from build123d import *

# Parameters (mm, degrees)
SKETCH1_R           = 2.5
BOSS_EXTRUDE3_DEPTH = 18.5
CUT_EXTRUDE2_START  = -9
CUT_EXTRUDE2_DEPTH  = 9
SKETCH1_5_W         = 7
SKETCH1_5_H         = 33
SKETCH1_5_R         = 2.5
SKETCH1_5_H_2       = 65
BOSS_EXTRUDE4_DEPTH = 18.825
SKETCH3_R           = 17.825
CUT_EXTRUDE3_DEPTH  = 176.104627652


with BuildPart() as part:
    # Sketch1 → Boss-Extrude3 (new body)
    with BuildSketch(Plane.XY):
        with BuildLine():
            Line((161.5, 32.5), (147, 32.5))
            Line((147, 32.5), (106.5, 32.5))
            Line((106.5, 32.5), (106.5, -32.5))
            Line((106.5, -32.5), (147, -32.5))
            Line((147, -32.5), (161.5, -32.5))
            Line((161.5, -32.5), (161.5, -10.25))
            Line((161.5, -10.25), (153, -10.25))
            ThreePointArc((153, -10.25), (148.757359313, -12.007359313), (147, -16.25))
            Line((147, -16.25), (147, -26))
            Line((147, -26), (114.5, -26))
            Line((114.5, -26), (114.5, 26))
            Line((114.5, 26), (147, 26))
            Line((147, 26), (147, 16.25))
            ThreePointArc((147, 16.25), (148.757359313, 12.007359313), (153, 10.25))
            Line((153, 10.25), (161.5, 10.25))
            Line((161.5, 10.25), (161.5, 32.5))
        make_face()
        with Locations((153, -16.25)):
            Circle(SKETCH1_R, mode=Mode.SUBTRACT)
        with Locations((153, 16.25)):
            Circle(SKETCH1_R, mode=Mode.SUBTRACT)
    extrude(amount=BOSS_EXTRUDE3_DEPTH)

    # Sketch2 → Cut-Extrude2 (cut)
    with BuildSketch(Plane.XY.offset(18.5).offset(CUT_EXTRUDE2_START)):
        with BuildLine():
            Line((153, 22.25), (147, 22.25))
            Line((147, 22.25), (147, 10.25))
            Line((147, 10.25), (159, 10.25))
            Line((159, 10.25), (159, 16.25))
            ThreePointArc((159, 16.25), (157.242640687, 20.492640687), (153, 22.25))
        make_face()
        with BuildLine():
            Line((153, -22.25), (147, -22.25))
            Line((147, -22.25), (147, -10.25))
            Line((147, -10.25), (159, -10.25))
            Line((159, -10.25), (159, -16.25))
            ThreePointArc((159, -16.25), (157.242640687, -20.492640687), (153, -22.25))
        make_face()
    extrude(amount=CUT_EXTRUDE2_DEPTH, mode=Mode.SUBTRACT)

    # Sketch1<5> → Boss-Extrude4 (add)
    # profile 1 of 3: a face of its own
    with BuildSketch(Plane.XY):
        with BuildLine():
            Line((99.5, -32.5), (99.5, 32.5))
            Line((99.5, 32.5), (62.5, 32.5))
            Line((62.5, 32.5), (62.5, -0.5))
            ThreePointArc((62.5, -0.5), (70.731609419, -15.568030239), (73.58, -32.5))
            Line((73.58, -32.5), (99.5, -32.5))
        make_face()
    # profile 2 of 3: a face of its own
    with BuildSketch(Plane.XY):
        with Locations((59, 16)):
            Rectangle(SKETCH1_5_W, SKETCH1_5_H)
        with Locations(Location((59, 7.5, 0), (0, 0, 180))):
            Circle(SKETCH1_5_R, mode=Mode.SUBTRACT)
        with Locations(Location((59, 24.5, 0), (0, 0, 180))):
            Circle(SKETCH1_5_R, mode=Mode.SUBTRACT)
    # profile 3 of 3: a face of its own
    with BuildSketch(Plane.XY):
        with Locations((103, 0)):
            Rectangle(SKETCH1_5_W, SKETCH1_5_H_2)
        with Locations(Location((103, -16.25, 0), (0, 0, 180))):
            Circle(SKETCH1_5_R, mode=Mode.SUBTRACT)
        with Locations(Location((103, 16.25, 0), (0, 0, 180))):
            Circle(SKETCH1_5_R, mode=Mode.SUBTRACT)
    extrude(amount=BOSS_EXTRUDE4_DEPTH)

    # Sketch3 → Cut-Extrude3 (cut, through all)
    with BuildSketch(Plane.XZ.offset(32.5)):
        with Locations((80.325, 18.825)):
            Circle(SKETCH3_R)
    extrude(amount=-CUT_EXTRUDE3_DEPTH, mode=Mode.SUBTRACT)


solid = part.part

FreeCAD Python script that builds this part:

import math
import FreeCAD as App
import Part
import Sketcher

V = App.Vector

doc = App.newDocument("Part")
params = doc.addObject("Spreadsheet::Sheet", "Params")
for row, (alias, value) in enumerate([
    ("sketch1_diameter", "5 mm"),
    ("sketch1_radius", "6 mm"),
    ("sketch1_width", "55 mm"),
    ("sketch1_height", "65 mm"),
    ("sketch1_height2", "52 mm"),
    ("pad1_length", "18.5 mm"),
    ("sketch2_radius", "6 mm"),
    ("sketch2_width", "6 mm"),
    ("pocket1_length", "9 mm"),
    ("sketch3_diameter", "5 mm"),
    ("sketch3_width", "7 mm"),
    ("sketch3_width2", "51 mm"),
    ("sketch3_height", "33 mm"),
    ("sketch3_height2", "65 mm"),
    ("pad2_length", "18.825 mm"),
    ("sketch4_diameter", "35.65 mm"),
], start=1):
    params.set(f"A{row}", alias)
    params.set(f"B{row}", "=" + value)
    params.setAlias(f"B{row}", alias)

body = doc.addObject("PartDesign::Body", "Body")

sketch1 = doc.addObject("Sketcher::SketchObject", "Sketch")
body.addObject(sketch1)
sketch1.AttachmentSupport = (doc.XY_Plane, [""])
sketch1.MapMode = "FlatFace"
sketch1.addGeometry([
    Part.LineSegment(V(161.5, 32.5, 0), V(106.5, 32.5, 0)),
    Part.LineSegment(V(106.5, 32.5, 0), V(106.5, -32.5, 0)),
    Part.LineSegment(V(106.5, -32.5, 0), V(161.5, -32.5, 0)),
    Part.LineSegment(V(161.5, -32.5, 0), V(161.5, -10.25, 0)),
    Part.LineSegment(V(161.5, -10.25, 0), V(153, -10.25, 0)),
    Part.ArcOfCircle(Part.Circle(V(153, -16.25, 0), V(0, 0, 1), 6), math.radians(90), math.radians(180)),
    Part.LineSegment(V(147, -16.25, 0), V(147, -26, 0)),
    Part.LineSegment(V(147, -26, 0), V(114.5, -26, 0)),
    Part.LineSegment(V(114.5, -26, 0), V(114.5, 26, 0)),
    Part.LineSegment(V(114.5, 26, 0), V(147, 26, 0)),
    Part.LineSegment(V(147, 26, 0), V(147, 16.25, 0)),
    Part.ArcOfCircle(Part.Circle(V(153, 16.25, 0), V(0, 0, 1), 6), math.radians(180), math.radians(270)),
    Part.LineSegment(V(153, 10.25, 0), V(161.5, 10.25, 0)),
    Part.LineSegment(V(161.5, 10.25, 0), V(161.5, 32.5, 0)),
    Part.Circle(V(153, -16.25, 0), V(0, 0, 1), 2.5),
    Part.Circle(V(153, 16.25, 0), V(0, 0, 1), 2.5),
], False)
sketch1.addConstraint([
    Sketcher.Constraint("Coincident", 0, 2, 1, 1),
    Sketcher.Constraint("Coincident", 1, 2, 2, 1),
    Sketcher.Constraint("Coincident", 2, 2, 3, 1),
    Sketcher.Constraint("Coincident", 3, 2, 4, 1),
    Sketcher.Constraint("Tangent", 4, 2, 5, 1),
    Sketcher.Constraint("Tangent", 5, 2, 6, 1),
    Sketcher.Constraint("Coincident", 6, 2, 7, 1),
    Sketcher.Constraint("Coincident", 7, 2, 8, 1),
    Sketcher.Constraint("Coincident", 8, 2, 9, 1),
    Sketcher.Constraint("Coincident", 9, 2, 10, 1),
    Sketcher.Constraint("Tangent", 10, 2, 11, 1),
    Sketcher.Constraint("Tangent", 11, 2, 12, 1),
    Sketcher.Constraint("Coincident", 12, 2, 13, 1),
    Sketcher.Constraint("Coincident", 13, 2, 0, 1),
    Sketcher.Constraint("Horizontal", 0),
    Sketcher.Constraint("Vertical", 1),
    Sketcher.Constraint("Horizontal", 2),
    Sketcher.Constraint("Vertical", 3),
    Sketcher.Constraint("Horizontal", 4),
    Sketcher.Constraint("Vertical", 6),
    Sketcher.Constraint("Horizontal", 7),
    Sketcher.Constraint("Vertical", 8),
    Sketcher.Constraint("Horizontal", 9),
    Sketcher.Constraint("Vertical", 10),
    Sketcher.Constraint("Horizontal", 12),
    Sketcher.Constraint("Vertical", 13),
    Sketcher.Constraint("Coincident", 14, 3, 5, 3),
    Sketcher.Constraint("Coincident", 15, 3, 11, 3),
    Sketcher.Constraint("Equal", 5, 11),
    Sketcher.Constraint("Equal", 14, 15),
    Sketcher.Constraint("Symmetric", 5, 3, 11, 3, -1),
    Sketcher.Constraint("Symmetric", 2, 2, 13, 2, -1),
    Sketcher.Constraint("Equal", 6, 10),
    Sketcher.Constraint("Diameter", 14, 5.0),
    Sketcher.Constraint("Radius", 5, 6.0),
    Sketcher.Constraint("DistanceX", 0, 2, 0, 1, 55.0),
    Sketcher.Constraint("DistanceY", 1, 2, 1, 1, 65.0),
    Sketcher.Constraint("DistanceY", 8, 1, 8, 2, 52.0),
    Sketcher.Constraint("DistanceX", 4, 2, 4, 1, 8.5),
    Sketcher.Constraint("DistanceX", 7, 2, 7, 1, 32.5),
    Sketcher.Constraint("DistanceX", -1, 1, 5, 3, 153.0),
    Sketcher.Constraint("DistanceY", 3, 1, 3, 2, 22.25),
])
sketch1.setExpression("Constraints[33]", "Params.sketch1_diameter")
sketch1.setExpression("Constraints[34]", "Params.sketch1_radius")
sketch1.setExpression("Constraints[35]", "Params.sketch1_width")
sketch1.setExpression("Constraints[36]", "Params.sketch1_height")
sketch1.setExpression("Constraints[37]", "Params.sketch1_height2")
pad1 = doc.addObject("PartDesign::Pad", "Pad")
body.addObject(pad1)
pad1.Profile = sketch1
pad1.setExpression("Length", "Params.pad1_length")

sketch2 = doc.addObject("Sketcher::SketchObject", "Sketch001")
body.addObject(sketch2)
sketch2.AttachmentSupport = (doc.XY_Plane, [""])
sketch2.MapMode = "FlatFace"
sketch2.AttachmentOffset = App.Placement(V(0, 0, 9.5), App.Rotation())
sketch2.addGeometry([
    Part.LineSegment(V(153, 22.25, 0), V(147, 22.25, 0)),
    Part.LineSegment(V(147, 22.25, 0), V(147, 10.25, 0)),
    Part.LineSegment(V(147, 10.25, 0), V(159, 10.25, 0)),
    Part.LineSegment(V(159, 10.25, 0), V(159, 16.25, 0)),
    Part.ArcOfCircle(Part.Circle(V(153, 16.25, 0), V(0, 0, 1), 6), math.radians(0), math.radians(90)),
    Part.LineSegment(V(147, -22.25, 0), V(153, -22.25, 0)),
    Part.ArcOfCircle(Part.Circle(V(153, -16.25, 0), V(0, 0, 1), 6), math.radians(-90), math.radians(0)),
    Part.LineSegment(V(159, -16.25, 0), V(159, -10.25, 0)),
    Part.LineSegment(V(159, -10.25, 0), V(147, -10.25, 0)),
    Part.LineSegment(V(147, -10.25, 0), V(147, -22.25, 0)),
], False)
sketch2.addConstraint([
    Sketcher.Constraint("Coincident", 0, 2, 1, 1),
    Sketcher.Constraint("Coincident", 1, 2, 2, 1),
    Sketcher.Constraint("Coincident", 2, 2, 3, 1),
    Sketcher.Constraint("Tangent", 3, 2, 4, 1),
    Sketcher.Constraint("Tangent", 4, 2, 0, 1),
    Sketcher.Constraint("Tangent", 5, 2, 6, 1),
    Sketcher.Constraint("Tangent", 6, 2, 7, 1),
    Sketcher.Constraint("Coincident", 7, 2, 8, 1),
    Sketcher.Constraint("Coincident", 8, 2, 9, 1),
    Sketcher.Constraint("Coincident", 9, 2, 5, 1),
    Sketcher.Constraint("Horizontal", 0),
    Sketcher.Constraint("Vertical", 1),
    Sketcher.Constraint("Horizontal", 2),
    Sketcher.Constraint("Vertical", 3),
    Sketcher.Constraint("Horizontal", 5),
    Sketcher.Constraint("Vertical", 7),
    Sketcher.Constraint("Horizontal", 8),
    Sketcher.Constraint("Vertical", 9),
    Sketcher.Constraint("Equal", 4, 6),
    Sketcher.Constraint("Symmetric", 4, 3, 6, 3, -1),
    Sketcher.Constraint("Symmetric", 1, 2, 8, 2, -1),
    Sketcher.Constraint("Equal", 8, 1),
    Sketcher.Constraint("Radius", 4, 6.0),
    Sketcher.Constraint("DistanceX", 0, 2, 0, 1, 6.0),
    Sketcher.Constraint("DistanceX", -1, 1, 4, 3, 153.0),
    Sketcher.Constraint("DistanceY", 6, 3, 4, 3, 32.5),
])
sketch2.setExpression("Constraints[22]", "Params.sketch2_radius")
sketch2.setExpression("Constraints[23]", "Params.sketch2_width")
pocket1 = doc.addObject("PartDesign::Pocket", "Pocket")
body.addObject(pocket1)
pocket1.Profile = sketch2
pocket1.setExpression("Length", "Params.pocket1_length")
pocket1.Reversed = True

sketch3 = doc.addObject("Sketcher::SketchObject", "Sketch002")
body.addObject(sketch3)
sketch3.AttachmentSupport = (doc.XY_Plane, [""])
sketch3.MapMode = "FlatFace"
sketch3.addGeometry([
    Part.LineSegment(V(55.5, 32.5, 0), V(55.5, -0.5, 0)),
    Part.LineSegment(V(55.5, -0.5, 0), V(62.5, -0.5, 0)),
    Part.ArcOfCircle(Part.Circle(V(21.830614, -32.5, 0), V(0, 0, 1), 51.749386), math.radians(0), math.radians(38.196823)),
    Part.LineSegment(V(73.58, -32.5, 0), V(106.5, -32.5, 0)),
    Part.LineSegment(V(106.5, -32.5, 0), V(106.5, 32.5, 0)),
    Part.LineSegment(V(106.5, 32.5, 0), V(55.5, 32.5, 0)),
    Part.Circle(V(103, 16.25, 0), V(0, 0, 1), 2.5),
    Part.Circle(V(103, -16.25, 0), V(0, 0, 1), 2.5),
    Part.Circle(V(59, 24.5, 0), V(0, 0, 1), 2.5),
    Part.Circle(V(59, 7.5, 0), V(0, 0, 1), 2.5),
], False)
sketch3.addConstraint([
    Sketcher.Constraint("Coincident", 0, 2, 1, 1),
    Sketcher.Constraint("Coincident", 1, 2, 2, 2),
    Sketcher.Constraint("Coincident", 2, 1, 3, 1),
    Sketcher.Constraint("Coincident", 3, 2, 4, 1),
    Sketcher.Constraint("Coincident", 4, 2, 5, 1),
    Sketcher.Constraint("Coincident", 5, 2, 0, 1),
    Sketcher.Constraint("Vertical", 0),
    Sketcher.Constraint("Horizontal", 1),
    Sketcher.Constraint("Horizontal", 3),
    Sketcher.Constraint("Vertical", 4),
    Sketcher.Constraint("Horizontal", 5),
    Sketcher.Constraint("Equal", 6, 7),
    Sketcher.Constraint("Equal", 7, 8),
    Sketcher.Constraint("Equal", 8, 9),
    Sketcher.Constraint("Symmetric", 6, 3, 7, 3, -1),
    Sketcher.Constraint("Vertical", 8, 3, 9, 3),
    Sketcher.Constraint("Diameter", 6, 5.0),
    Sketcher.Constraint("DistanceX", 1, 1, 1, 2, 7.0),
    Sketcher.Constraint("DistanceX", 5, 2, 5, 1, 51.0),
    Sketcher.Constraint("DistanceY", 0, 2, 0, 1, 33.0),
    Sketcher.Constraint("DistanceY", 4, 1, 4, 2, 65.0),
    Sketcher.Constraint("DistanceX", -1, 1, 6, 3, 103.0),
    Sketcher.Constraint("DistanceX", -1, 1, 8, 3, 59.0),
    Sketcher.Constraint("DistanceY", 2, 3, 8, 3, 57.0),
    Sketcher.Constraint("DistanceY", 9, 3, 8, 3, 17.0),
    Sketcher.Constraint("DistanceY", 0, 2, 9, 3, 8.0),
    Sketcher.Constraint("DistanceX", 3, 1, 3, 2, 32.92),
    Sketcher.Constraint("DistanceY", 2, 3, -1, 1, 32.5),
    Sketcher.Constraint("DistanceX", -1, 1, 0, 2, 55.5),
    Sketcher.Constraint("DistanceY", 7, 3, 6, 3, 32.5),
])
sketch3.setExpression("Constraints[16]", "Params.sketch3_diameter")
sketch3.setExpression("Constraints[17]", "Params.sketch3_width")
sketch3.setExpression("Constraints[18]", "Params.sketch3_width2")
sketch3.setExpression("Constraints[19]", "Params.sketch3_height")
sketch3.setExpression("Constraints[20]", "Params.sketch3_height2")
pad2 = doc.addObject("PartDesign::Pad", "Pad001")
body.addObject(pad2)
pad2.Profile = sketch3
pad2.setExpression("Length", "Params.pad2_length")

sketch4 = doc.addObject("Sketcher::SketchObject", "Sketch003")
body.addObject(sketch4)
sketch4.AttachmentSupport = (doc.XZ_Plane, [""])
sketch4.MapMode = "FlatFace"
sketch4.AttachmentOffset = App.Placement(V(0, 0, 32.5), App.Rotation())
sketch4.addGeometry(Part.Circle(V(80.325, 18.825, 0), V(0, 0, 1), 17.825), False)
sketch4.addConstraint([
    Sketcher.Constraint("Diameter", 0, 35.65),
    Sketcher.Constraint("DistanceX", -1, 1, 0, 3, 80.325),
    Sketcher.Constraint("DistanceY", -1, 1, 0, 3, 18.825),
])
sketch4.setExpression("Constraints[0]", "Params.sketch4_diameter")
pocket2 = doc.addObject("PartDesign::Pocket", "Pocket001")
body.addObject(pocket2)
pocket2.Profile = sketch4
pocket2.Type = "ThroughAll"

doc.recompute()
